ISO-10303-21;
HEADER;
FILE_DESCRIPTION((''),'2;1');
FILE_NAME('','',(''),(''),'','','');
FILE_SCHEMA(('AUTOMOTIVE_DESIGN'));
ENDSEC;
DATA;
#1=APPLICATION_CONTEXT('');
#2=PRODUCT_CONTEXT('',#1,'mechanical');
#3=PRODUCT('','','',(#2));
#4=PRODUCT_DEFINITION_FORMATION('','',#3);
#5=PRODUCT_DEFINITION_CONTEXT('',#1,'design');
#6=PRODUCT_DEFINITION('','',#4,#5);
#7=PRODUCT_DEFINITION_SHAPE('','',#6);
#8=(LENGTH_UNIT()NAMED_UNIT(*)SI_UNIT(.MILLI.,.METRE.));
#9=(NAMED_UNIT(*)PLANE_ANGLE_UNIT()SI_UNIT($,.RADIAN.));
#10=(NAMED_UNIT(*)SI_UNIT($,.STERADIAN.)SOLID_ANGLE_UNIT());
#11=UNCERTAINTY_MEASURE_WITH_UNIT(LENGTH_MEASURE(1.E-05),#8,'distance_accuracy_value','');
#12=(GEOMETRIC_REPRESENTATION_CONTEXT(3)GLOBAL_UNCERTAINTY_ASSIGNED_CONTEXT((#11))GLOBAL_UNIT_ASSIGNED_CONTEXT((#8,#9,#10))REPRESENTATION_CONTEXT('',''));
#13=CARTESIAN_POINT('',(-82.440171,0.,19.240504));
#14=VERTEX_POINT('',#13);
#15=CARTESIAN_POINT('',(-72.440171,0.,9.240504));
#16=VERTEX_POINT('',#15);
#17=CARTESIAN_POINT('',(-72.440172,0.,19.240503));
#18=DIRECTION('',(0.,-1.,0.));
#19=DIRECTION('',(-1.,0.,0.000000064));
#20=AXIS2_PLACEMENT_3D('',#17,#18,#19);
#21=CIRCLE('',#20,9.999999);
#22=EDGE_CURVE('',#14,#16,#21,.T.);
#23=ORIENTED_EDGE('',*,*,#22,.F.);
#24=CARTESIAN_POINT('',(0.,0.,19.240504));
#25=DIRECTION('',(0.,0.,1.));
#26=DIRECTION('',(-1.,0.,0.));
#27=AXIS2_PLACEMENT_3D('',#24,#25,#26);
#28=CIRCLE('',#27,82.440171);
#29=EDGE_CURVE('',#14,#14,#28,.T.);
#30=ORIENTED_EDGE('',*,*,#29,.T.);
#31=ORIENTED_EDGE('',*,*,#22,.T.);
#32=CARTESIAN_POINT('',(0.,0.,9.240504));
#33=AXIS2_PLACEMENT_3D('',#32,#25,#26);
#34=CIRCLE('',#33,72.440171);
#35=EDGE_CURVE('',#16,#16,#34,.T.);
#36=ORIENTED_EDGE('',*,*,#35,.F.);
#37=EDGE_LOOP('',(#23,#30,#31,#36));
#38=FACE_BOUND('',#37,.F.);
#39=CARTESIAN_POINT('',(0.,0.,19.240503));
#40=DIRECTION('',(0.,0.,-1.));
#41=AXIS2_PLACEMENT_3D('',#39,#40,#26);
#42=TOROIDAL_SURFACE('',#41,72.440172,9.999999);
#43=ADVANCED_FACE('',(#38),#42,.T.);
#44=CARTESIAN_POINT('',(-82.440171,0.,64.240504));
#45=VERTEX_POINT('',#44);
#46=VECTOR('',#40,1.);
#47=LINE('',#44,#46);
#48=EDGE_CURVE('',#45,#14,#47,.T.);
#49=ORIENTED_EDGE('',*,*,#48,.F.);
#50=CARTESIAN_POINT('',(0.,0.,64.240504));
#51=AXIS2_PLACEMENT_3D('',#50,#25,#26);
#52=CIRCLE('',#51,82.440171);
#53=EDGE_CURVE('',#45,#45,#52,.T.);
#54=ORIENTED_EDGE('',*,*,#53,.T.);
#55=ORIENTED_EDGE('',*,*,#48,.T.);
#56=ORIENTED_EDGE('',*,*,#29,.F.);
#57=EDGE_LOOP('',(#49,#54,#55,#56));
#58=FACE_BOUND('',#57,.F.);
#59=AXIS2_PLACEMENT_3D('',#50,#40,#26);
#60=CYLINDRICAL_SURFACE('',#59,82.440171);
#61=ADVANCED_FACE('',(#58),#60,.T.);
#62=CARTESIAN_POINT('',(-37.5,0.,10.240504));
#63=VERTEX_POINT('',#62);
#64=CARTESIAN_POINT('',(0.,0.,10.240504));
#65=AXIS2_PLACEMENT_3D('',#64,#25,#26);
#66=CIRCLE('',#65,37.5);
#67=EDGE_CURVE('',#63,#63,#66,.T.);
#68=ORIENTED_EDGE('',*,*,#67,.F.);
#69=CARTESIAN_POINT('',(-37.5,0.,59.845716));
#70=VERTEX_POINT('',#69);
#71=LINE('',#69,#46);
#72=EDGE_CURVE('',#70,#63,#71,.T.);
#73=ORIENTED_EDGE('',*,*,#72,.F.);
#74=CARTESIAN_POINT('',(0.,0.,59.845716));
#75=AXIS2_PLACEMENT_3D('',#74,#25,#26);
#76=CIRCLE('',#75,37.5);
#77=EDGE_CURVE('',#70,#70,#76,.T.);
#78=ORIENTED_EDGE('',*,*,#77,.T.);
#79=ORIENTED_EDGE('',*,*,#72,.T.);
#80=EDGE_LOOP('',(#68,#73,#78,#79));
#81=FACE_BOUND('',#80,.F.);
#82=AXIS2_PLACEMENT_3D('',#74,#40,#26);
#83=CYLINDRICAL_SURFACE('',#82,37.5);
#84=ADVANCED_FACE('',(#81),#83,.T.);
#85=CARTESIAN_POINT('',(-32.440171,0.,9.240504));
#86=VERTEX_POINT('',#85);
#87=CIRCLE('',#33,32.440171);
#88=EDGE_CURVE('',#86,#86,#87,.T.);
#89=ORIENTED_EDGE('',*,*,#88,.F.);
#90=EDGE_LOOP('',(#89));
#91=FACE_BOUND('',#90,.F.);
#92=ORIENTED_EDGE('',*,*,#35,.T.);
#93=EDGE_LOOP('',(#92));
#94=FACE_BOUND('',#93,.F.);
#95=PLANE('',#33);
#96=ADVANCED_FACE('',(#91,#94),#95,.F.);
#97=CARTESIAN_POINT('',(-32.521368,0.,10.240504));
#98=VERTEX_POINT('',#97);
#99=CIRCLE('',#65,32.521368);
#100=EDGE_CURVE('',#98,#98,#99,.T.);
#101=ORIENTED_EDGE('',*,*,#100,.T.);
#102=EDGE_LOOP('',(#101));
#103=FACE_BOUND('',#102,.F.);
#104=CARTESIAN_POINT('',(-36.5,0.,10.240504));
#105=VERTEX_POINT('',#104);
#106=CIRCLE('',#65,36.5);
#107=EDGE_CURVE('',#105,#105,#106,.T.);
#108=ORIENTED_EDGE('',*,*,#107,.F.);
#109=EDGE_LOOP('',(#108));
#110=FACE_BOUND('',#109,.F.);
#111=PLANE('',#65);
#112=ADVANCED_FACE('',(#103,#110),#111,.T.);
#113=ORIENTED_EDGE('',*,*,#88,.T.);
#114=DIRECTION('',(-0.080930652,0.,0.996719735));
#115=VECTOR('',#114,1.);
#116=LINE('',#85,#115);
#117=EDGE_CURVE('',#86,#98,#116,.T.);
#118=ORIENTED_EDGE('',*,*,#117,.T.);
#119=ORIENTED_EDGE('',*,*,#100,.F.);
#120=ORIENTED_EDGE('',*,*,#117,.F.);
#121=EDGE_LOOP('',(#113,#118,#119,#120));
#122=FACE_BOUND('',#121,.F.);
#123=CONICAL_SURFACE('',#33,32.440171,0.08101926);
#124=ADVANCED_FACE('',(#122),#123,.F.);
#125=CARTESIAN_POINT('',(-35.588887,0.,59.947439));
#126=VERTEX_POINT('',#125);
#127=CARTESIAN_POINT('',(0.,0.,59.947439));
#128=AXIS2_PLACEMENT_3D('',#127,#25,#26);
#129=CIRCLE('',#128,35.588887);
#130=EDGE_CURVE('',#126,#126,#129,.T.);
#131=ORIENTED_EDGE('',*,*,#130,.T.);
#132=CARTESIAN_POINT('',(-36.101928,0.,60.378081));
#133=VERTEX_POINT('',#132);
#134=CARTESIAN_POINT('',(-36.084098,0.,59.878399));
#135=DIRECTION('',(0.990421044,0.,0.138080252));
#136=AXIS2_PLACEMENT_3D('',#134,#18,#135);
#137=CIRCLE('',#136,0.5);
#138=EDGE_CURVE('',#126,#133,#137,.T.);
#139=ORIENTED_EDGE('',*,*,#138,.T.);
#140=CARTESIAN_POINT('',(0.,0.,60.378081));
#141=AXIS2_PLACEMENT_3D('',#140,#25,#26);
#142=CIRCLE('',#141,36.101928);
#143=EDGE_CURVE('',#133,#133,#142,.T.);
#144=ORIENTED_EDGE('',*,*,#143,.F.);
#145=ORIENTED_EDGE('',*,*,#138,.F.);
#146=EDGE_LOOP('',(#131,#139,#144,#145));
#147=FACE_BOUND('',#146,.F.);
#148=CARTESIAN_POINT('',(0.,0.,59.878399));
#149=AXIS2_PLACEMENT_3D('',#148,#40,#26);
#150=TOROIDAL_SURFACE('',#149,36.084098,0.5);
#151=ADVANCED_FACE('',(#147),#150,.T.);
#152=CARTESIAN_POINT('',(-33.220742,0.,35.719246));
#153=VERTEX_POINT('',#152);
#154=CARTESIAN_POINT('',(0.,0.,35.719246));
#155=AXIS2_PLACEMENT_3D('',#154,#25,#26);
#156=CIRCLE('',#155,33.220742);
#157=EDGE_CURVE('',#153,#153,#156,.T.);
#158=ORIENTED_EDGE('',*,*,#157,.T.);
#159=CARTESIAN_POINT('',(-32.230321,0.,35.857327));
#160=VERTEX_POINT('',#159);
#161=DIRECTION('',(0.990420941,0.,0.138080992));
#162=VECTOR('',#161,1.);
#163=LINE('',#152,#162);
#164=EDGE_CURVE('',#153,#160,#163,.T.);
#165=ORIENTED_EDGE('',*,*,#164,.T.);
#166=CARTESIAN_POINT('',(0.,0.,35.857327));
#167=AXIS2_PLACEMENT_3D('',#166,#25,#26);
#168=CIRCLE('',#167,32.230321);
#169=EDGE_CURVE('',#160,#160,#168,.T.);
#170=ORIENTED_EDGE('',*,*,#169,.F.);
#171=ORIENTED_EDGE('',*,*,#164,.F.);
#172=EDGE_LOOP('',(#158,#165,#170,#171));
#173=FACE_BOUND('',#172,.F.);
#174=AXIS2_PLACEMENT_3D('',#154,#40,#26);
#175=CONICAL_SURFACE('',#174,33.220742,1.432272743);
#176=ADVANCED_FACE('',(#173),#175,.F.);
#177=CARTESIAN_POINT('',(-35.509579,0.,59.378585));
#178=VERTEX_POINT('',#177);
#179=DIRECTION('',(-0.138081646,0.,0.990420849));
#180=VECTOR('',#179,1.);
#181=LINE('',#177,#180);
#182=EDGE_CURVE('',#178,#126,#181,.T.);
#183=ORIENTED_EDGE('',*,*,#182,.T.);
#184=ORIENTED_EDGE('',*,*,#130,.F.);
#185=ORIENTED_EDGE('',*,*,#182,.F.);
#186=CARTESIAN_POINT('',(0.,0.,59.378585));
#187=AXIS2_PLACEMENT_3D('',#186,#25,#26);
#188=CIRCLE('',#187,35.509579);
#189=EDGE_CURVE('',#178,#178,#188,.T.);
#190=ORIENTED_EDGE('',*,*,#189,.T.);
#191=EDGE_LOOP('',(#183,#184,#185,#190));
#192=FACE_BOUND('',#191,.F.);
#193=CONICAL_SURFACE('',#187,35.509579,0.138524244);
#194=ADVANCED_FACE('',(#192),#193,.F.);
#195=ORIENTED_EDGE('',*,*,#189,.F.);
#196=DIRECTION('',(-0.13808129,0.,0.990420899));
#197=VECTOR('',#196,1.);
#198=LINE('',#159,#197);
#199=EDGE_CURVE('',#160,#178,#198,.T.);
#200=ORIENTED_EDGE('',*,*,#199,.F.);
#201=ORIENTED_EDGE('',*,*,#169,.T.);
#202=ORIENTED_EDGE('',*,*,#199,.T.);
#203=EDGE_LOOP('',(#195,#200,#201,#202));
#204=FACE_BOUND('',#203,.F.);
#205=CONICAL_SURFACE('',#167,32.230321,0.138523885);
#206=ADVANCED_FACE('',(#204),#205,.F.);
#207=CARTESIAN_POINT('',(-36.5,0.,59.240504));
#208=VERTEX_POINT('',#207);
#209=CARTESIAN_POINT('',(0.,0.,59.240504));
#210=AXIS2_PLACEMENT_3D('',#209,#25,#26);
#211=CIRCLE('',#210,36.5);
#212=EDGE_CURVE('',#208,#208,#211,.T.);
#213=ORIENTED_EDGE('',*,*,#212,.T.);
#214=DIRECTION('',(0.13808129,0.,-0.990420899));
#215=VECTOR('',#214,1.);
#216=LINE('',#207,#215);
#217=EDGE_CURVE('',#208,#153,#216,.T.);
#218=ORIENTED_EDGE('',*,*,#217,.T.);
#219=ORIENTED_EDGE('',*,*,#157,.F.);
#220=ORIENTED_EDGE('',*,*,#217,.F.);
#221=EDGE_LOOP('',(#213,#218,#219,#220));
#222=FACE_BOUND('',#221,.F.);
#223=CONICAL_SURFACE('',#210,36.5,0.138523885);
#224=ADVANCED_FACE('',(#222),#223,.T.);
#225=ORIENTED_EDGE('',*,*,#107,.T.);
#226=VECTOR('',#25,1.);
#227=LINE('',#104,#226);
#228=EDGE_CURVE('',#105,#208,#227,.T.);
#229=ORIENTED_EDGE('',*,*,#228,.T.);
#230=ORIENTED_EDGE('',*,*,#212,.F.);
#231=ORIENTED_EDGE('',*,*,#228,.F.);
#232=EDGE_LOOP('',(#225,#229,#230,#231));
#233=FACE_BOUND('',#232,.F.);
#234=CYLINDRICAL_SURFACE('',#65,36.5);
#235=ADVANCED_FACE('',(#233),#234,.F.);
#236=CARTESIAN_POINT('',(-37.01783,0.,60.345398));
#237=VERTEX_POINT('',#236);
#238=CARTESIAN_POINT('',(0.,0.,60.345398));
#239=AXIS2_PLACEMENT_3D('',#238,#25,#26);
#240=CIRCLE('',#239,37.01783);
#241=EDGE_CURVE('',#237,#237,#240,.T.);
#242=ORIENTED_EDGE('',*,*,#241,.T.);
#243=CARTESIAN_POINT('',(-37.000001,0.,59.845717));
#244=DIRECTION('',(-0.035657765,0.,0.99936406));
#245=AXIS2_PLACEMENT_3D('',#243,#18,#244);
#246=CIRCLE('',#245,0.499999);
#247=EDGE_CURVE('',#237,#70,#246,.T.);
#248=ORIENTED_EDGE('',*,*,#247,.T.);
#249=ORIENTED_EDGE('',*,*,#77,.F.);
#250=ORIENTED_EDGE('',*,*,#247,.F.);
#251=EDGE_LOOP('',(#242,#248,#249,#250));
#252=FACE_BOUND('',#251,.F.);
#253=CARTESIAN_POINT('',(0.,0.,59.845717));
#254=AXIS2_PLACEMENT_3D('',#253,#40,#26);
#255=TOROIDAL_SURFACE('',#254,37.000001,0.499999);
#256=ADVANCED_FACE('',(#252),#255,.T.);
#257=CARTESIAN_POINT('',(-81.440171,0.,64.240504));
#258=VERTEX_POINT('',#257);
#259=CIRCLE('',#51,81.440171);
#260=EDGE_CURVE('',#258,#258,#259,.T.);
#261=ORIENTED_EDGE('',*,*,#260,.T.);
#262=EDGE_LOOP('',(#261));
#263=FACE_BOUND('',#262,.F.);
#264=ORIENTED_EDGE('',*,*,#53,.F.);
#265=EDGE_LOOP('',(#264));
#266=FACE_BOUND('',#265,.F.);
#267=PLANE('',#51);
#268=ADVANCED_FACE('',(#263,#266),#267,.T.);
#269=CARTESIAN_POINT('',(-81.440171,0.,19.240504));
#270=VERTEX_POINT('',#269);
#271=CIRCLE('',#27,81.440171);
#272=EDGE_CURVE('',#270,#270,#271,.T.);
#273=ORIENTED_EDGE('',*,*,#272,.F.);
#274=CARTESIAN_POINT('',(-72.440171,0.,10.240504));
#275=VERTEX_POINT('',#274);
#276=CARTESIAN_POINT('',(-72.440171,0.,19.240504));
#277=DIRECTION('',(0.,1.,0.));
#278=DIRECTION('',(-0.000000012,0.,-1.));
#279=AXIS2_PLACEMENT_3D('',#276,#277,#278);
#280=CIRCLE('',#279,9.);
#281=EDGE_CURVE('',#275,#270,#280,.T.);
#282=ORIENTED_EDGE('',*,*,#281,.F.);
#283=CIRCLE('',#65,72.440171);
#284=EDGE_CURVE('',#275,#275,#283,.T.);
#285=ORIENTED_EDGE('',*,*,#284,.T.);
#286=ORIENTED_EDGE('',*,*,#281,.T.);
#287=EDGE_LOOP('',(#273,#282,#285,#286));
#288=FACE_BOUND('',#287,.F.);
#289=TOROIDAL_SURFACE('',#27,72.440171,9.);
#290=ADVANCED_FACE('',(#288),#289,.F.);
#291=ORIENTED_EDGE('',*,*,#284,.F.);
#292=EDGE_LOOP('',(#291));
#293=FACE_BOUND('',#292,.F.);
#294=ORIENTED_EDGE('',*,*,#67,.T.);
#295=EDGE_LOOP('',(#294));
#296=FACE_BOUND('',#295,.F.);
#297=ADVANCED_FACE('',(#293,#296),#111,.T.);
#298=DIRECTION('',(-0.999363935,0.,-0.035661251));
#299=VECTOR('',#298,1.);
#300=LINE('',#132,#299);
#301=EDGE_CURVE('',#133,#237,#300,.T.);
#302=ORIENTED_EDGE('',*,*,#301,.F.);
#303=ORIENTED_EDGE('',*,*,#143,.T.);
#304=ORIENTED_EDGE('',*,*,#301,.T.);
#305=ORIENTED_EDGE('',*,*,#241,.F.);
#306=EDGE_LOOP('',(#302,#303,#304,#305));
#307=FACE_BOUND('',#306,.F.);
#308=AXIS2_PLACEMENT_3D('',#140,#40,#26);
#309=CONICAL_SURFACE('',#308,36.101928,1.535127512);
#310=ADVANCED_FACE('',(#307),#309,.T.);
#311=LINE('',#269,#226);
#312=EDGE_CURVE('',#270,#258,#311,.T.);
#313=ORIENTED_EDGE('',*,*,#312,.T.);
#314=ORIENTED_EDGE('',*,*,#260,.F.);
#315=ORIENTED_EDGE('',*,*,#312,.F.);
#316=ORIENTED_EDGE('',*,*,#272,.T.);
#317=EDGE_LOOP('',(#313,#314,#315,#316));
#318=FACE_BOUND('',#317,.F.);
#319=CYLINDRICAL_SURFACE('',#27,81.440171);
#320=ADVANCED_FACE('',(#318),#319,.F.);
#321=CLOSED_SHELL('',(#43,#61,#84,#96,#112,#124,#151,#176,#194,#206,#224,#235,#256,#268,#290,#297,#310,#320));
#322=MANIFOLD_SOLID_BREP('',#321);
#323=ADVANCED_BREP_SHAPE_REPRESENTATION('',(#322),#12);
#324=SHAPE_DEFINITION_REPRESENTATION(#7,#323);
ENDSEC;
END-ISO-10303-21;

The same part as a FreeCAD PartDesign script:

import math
import FreeCAD as App
import Part
import Sketcher

doc = App.newDocument("Part")
body = doc.addObject("PartDesign::Body", "Body")

sketch1 = doc.addObject("Sketcher::SketchObject", "Sketch")
body.addObject(sketch1)
sketch1.AttachmentSupport = (doc.XZ_Plane, [""])
sketch1.MapMode = "FlatFace"
sketch1.addGeometry(Part.LineSegment(App.Vector(-32.44, 9.24, 0), App.Vector(-32.52, 10.24, 0)), False)
sketch1.addGeometry(Part.LineSegment(App.Vector(-32.52, 10.24, 0), App.Vector(-36.5, 10.24, 0)), False)
sketch1.addGeometry(Part.LineSegment(App.Vector(-36.5, 10.24, 0), App.Vector(-36.5, 59.24, 0)), False)
sketch1.addGeometry(Part.LineSegment(App.Vector(-36.5, 59.24, 0), App.Vector(-33.22, 35.72, 0)), False)
sketch1.addGeometry(Part.LineSegment(App.Vector(-33.22, 35.72, 0), App.Vector(-32.23, 35.86, 0)), False)
sketch1.addGeometry(Part.LineSegment(App.Vector(-32.23, 35.86, 0), App.Vector(-35.51, 59.38, 0)), False)
sketch1.addGeometry(Part.LineSegment(App.Vector(-35.51, 59.38, 0), App.Vector(-35.59, 59.95, 0)), False)
sketch1.addGeometry(Part.ArcOfCircle(Part.Circle(App.Vector(-36.08, 59.88, 0), App.Vector(0, 0, 1), 0.5), math.radians(8), math.radians(92)), False)
sketch1.addGeometry(Part.LineSegment(App.Vector(-36.1, 60.38, 0), App.Vector(-37.02, 60.35, 0)), False)
sketch1.addGeometry(Part.ArcOfCircle(Part.Circle(App.Vector(-37, 59.85, 0), App.Vector(0, 0, 1), 0.5), math.radians(92), math.radians(180)), False)
sketch1.addGeometry(Part.LineSegment(App.Vector(-37.5, 59.85, 0), App.Vector(-37.5, 10.24, 0)), False)
sketch1.addGeometry(Part.LineSegment(App.Vector(-37.5, 10.24, 0), App.Vector(-72.44, 10.24, 0)), False)
sketch1.addGeometry(Part.ArcOfCircle(Part.Circle(App.Vector(-72.44, 19.24, 0), App.Vector(0, 0, 1), 9), math.radians(-180), math.radians(-90)), False)
sketch1.addGeometry(Part.LineSegment(App.Vector(-81.44, 19.24, 0), App.Vector(-81.44, 64.24, 0)), False)
sketch1.addGeometry(Part.LineSegment(App.Vector(-81.44, 64.24, 0), App.Vector(-82.44, 64.24, 0)), False)
sketch1.addGeometry(Part.LineSegment(App.Vector(-82.44, 64.24, 0), App.Vector(-82.44, 19.24, 0)), False)
sketch1.addGeometry(Part.ArcOfCircle(Part.Circle(App.Vector(-72.44, 19.24, 0), App.Vector(0, 0, 1), 10), math.radians(180), math.radians(270)), False)
sketch1.addGeometry(Part.LineSegment(App.Vector(-72.44, 9.24, 0), App.Vector(-32.44, 9.24, 0)), False)
sketch1.addConstraint(Sketcher.Constraint("Coincident", 0, 2, 1, 1))
sketch1.addConstraint(Sketcher.Constraint("Coincident", 1, 2, 2, 1))
sketch1.addConstraint(Sketcher.Constraint("Coincident", 2, 2, 3, 1))
sketch1.addConstraint(Sketcher.Constraint("Coincident", 3, 2, 4, 1))
sketch1.addConstraint(Sketcher.Constraint("Coincident", 4, 2, 5, 1))
sketch1.addConstraint(Sketcher.Constraint("Coincident", 5, 2, 6, 1))
sketch1.addConstraint(Sketcher.Constraint("Tangent", 6, 2, 7, 1))
sketch1.addConstraint(Sketcher.Constraint("Tangent", 7, 2, 8, 1))
sketch1.addConstraint(Sketcher.Constraint("Coincident", 8, 2, 9, 1))
sketch1.addConstraint(Sketcher.Constraint("Coincident", 9, 2, 10, 1))
sketch1.addConstraint(Sketcher.Constraint("Coincident", 10, 2, 11, 1))
sketch1.addConstraint(Sketcher.Constraint("Tangent", 11, 2, 12, 2))
sketch1.addConstraint(Sketcher.Constraint("Tangent", 12, 1, 13, 1))
sketch1.addConstraint(Sketcher.Constraint("Coincident", 13, 2, 14, 1))
sketch1.addConstraint(Sketcher.Constraint("Coincident", 14, 2, 15, 1))
sketch1.addConstraint(Sketcher.Constraint("Tangent", 15, 2, 16, 1))
sketch1.addConstraint(Sketcher.Constraint("Tangent", 16, 2, 17, 1))
sketch1.addConstraint(Sketcher.Constraint("Coincident", 17, 2, 0, 1))
sketch1.addConstraint(Sketcher.Constraint("Horizontal", 1))
sketch1.addConstraint(Sketcher.Constraint("Vertical", 2))
sketch1.addConstraint(Sketcher.Constraint("Vertical", 10))
sketch1.addConstraint(Sketcher.Constraint("Horizontal", 11))
sketch1.addConstraint(Sketcher.Constraint("Vertical", 13))
sketch1.addConstraint(Sketcher.Constraint("Horizontal", 14))
sketch1.addConstraint(Sketcher.Constraint("Vertical", 15))
sketch1.addConstraint(Sketcher.Constraint("Horizontal", 17))
sketch1.addConstraint(Sketcher.Constraint("Coincident", 16, 3, 12, 3))
sketch1.addConstraint(Sketcher.Constraint("Equal", 7, 9))
sketch1.addConstraint(Sketcher.Constraint("Perpendicular", 3, 4))
sketch1.addConstraint(Sketcher.Constraint("Perpendicular", 4, 5))
sketch1.addConstraint(Sketcher.Constraint("Parallel", 5, 6))
sketch1.addConstraint(Sketcher.Constraint("Horizontal", 1, 2, 10, 2))
sketch1.addConstraint(Sketcher.Constraint("Equal", 3, 5))
sketch1.addConstraint(Sketcher.Constraint("Radius", 12, 9.0))
sketch1.addConstraint(Sketcher.Constraint("Radius", 16, 9.999999))
sketch1.addConstraint(Sketcher.Constraint("Radius", 7, 0.5))
sketch1.addConstraint(Sketcher.Constraint("DistanceX", 17, 1, 17, 2, 40.0))
sketch1.addConstraint(Sketcher.Constraint("DistanceY", 2, 1, 2, 2, 49.0))
sketch1.addConstraint(Sketcher.Constraint("DistanceY", 13, 1, 13, 2, 45.0))
sketch1.addConstraint(Sketcher.Constraint("Distance", 4, 1.0))
sketch1.addConstraint(Sketcher.Constraint("DistanceX", 9, 3, -1, 1, 37.000001))
sketch1.addConstraint(Sketcher.Constraint("DistanceX", 9, 2, 2, 2, 1.0))
sketch1.addConstraint(Sketcher.Constraint("DistanceY", 7, 3, 8, 2, 0.466999))
sketch1.addConstraint(Sketcher.Constraint("DistanceX", 1, 2, 1, 1, 3.978632))
sketch1.addConstraint(Sketcher.Constraint("DistanceX", 11, 2, 11, 1, 34.940171))
sketch1.addConstraint(Sketcher.Constraint("DistanceY", -1, 1, 7, 3, 59.878399))
sketch1.addConstraint(Sketcher.Constraint("DistanceX", 8, 2, 7, 2, 0.915902))
sketch1.addConstraint(Sketcher.Constraint("Distance", 3, 23.74875))
sketch1.addConstraint(Sketcher.Constraint("DistanceY", 10, 2, 10, 1, 49.605212))
sketch1.addConstraint(Sketcher.Constraint("DistanceX", 4, 2, -1, 1, 32.230321))
sketch1.addConstraint(Sketcher.Constraint("DistanceX", 7, 2, -1, 1, 36.101928))
revolution = doc.addObject("PartDesign::Revolution", "Revolution")
body.addObject(revolution)
revolution.Profile = sketch1
revolution.ReferenceAxis = (sketch1, ["V_Axis"])
revolution.Angle = 360

doc.recompute()
